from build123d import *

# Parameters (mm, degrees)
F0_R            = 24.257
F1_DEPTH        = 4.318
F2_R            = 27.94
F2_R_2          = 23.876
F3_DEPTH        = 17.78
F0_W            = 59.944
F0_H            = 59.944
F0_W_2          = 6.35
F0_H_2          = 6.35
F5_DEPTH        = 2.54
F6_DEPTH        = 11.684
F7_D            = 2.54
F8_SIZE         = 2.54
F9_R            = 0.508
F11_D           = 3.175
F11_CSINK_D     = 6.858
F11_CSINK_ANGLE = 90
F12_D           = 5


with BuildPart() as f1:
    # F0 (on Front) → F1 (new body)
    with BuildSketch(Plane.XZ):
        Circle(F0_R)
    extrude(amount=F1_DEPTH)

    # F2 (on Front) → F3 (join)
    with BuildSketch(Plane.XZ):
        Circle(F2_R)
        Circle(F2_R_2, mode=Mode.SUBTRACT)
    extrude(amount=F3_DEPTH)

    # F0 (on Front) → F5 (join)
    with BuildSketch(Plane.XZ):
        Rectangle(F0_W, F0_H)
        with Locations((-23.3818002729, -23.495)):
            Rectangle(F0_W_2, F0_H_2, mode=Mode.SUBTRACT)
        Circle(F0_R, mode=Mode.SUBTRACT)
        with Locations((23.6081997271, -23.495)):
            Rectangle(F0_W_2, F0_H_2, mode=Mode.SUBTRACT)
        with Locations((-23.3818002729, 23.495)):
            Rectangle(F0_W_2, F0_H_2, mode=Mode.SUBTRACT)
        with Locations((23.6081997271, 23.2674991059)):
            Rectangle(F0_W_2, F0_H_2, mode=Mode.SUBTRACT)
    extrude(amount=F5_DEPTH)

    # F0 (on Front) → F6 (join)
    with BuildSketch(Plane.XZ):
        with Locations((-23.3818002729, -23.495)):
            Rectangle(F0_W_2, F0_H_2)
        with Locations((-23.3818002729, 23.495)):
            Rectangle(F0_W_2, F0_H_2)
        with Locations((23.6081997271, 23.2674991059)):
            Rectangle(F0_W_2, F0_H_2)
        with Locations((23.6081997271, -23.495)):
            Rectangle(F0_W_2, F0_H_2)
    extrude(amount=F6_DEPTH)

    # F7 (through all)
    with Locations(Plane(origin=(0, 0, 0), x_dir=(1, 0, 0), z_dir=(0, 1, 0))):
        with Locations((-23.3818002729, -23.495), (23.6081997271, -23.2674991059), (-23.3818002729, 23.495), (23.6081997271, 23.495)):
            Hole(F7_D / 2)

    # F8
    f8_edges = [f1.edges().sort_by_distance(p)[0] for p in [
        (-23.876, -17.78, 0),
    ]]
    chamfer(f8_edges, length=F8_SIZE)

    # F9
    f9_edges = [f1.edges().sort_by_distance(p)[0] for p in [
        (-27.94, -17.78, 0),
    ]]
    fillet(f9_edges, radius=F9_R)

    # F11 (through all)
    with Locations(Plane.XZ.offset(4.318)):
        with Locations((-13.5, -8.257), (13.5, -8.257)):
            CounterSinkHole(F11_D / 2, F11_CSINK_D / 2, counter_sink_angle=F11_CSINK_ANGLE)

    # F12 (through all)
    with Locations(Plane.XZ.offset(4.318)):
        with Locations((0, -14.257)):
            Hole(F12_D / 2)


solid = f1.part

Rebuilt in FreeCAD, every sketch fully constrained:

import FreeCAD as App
import Part
import Sketcher
Q = App.Units.Quantity


def edges_at(feature, points):
    """Names of the edges that pass closest to the given points."""
    edges = feature.Shape.Edges
    near = lambda p: min(range(len(edges)), key=lambda i: edges[i].distToShape(Part.Vertex(*p))[0])
    return sorted({f"Edge{near(p) + 1}" for p in points})

doc = App.newDocument("Part")
body = doc.addObject("PartDesign::Body", "Body")

sketch1 = body.newObject("Sketcher::SketchObject", "Sketch")
sketch1.AttachmentSupport = (doc.getObject("XZ_Plane"), [""])
sketch1.MapMode = "FlatFace"
sketch1.addGeometry(Part.Circle(App.Vector(0, 0, 0), App.Vector(0, 0, 1), 24), False)
sketch1.addConstraint(Sketcher.Constraint("Coincident", 0, 3, -1, 1))
sketch1.addConstraint(Sketcher.Constraint("Diameter", 0, Q("1.91 in")))
pad1 = body.newObject("PartDesign::Pad", "Pad")
pad1.Profile = sketch1
pad1.Length = Q("0.17 in")

sketch2 = body.newObject("Sketcher::SketchObject", "Sketch001")
sketch2.AttachmentSupport = (doc.getObject("XZ_Plane"), [""])
sketch2.MapMode = "FlatFace"
sketch2.addGeometry(Part.Circle(App.Vector(0, 0, 0), App.Vector(0, 0, 1), 28), False)
sketch2.addGeometry(Part.Circle(App.Vector(0, 0, 0), App.Vector(0, 0, 1), 24), False)
sketch2.addConstraint(Sketcher.Constraint("Coincident", 0, 3, -1, 1))
sketch2.addConstraint(Sketcher.Constraint("Coincident", 1, 3, -1, 1))
sketch2.addConstraint(Sketcher.Constraint("Diameter", 0, Q("2.2 in")))
sketch2.addConstraint(Sketcher.Constraint("Diameter", 1, Q("1.88 in")))
pad2 = body.newObject("PartDesign::Pad", "Pad001")
pad2.Profile = sketch2
pad2.Length = Q("0.7 in")

sketch3 = body.newObject("Sketcher::SketchObject", "Sketch002")
sketch3.AttachmentSupport = (doc.getObject("XZ_Plane"), [""])
sketch3.MapMode = "FlatFace"
sketch3.addGeometry(Part.LineSegment(App.Vector(-30, 30, 0), App.Vector(-30, -30, 0)), False)
sketch3.addGeometry(Part.LineSegment(App.Vector(-30, -30, 0), App.Vector(30, -30, 0)), False)
sketch3.addGeometry(Part.LineSegment(App.Vector(30, -30, 0), App.Vector(30, 30, 0)), False)
sketch3.addGeometry(Part.LineSegment(App.Vector(30, 30, 0), App.Vector(-30, 30, 0)), False)
sketch3.addGeometry(Part.LineSegment(App.Vector(-20, -27, 0), App.Vector(-27, -27, 0)), False)
sketch3.addGeometry(Part.LineSegment(App.Vector(-27, -27, 0), App.Vector(-27, -20, 0)), False)
sketch3.addGeometry(Part.LineSegment(App.Vector(-27, -20, 0), App.Vector(-20, -20, 0)), False)
sketch3.addGeometry(Part.LineSegment(App.Vector(-20, -20, 0), App.Vector(-20, -27, 0)), False)
sketch3.addGeometry(Part.Circle(App.Vector(0, 0, 0), App.Vector(0, 0, 1), 24), False)
sketch3.addGeometry(Part.LineSegment(App.Vector(27, -27, 0), App.Vector(20, -27, 0)), False)
sketch3.addGeometry(Part.LineSegment(App.Vector(20, -27, 0), App.Vector(20, -20, 0)), False)
sketch3.addGeometry(Part.LineSegment(App.Vector(20, -20, 0), App.Vector(27, -20, 0)), False)
sketch3.addGeometry(Part.LineSegment(App.Vector(27, -20, 0), App.Vector(27, -27, 0)), False)
sketch3.addGeometry(Part.LineSegment(App.Vector(-20, 20, 0), App.Vector(-27, 20, 0)), False)
sketch3.addGeometry(Part.LineSegment(App.Vector(-27, 20, 0), App.Vector(-27, 27, 0)), False)
sketch3.addGeometry(Part.LineSegment(App.Vector(-27, 27, 0), App.Vector(-20, 27, 0)), False)
sketch3.addGeometry(Part.LineSegment(App.Vector(-20, 27, 0), App.Vector(-20, 20, 0)), False)
sketch3.addGeometry(Part.LineSegment(App.Vector(27, 20, 0), App.Vector(20, 20, 0)), False)
sketch3.addGeometry(Part.LineSegment(App.Vector(20, 20, 0), App.Vector(20, 26, 0)), False)
sketch3.addGeometry(Part.LineSegment(App.Vector(20, 26, 0), App.Vector(27, 26, 0)), False)
sketch3.addGeometry(Part.LineSegment(App.Vector(27, 26, 0), App.Vector(27, 20, 0)), False)
sketch3.addConstraint(Sketcher.Constraint("Coincident", 0, 2, 1, 1))
sketch3.addConstraint(Sketcher.Constraint("Coincident", 1, 2, 2, 1))
sketch3.addConstraint(Sketcher.Constraint("Coincident", 2, 2, 3, 1))
sketch3.addConstraint(Sketcher.Constraint("Coincident", 3, 2, 0, 1))
sketch3.addConstraint(Sketcher.Constraint("Coincident", 4, 2, 5, 1))
sketch3.addConstraint(Sketcher.Constraint("Coincident", 5, 2, 6, 1))
sketch3.addConstraint(Sketcher.Constraint("Coincident", 6, 2, 7, 1))
sketch3.addConstraint(Sketcher.Constraint("Coincident", 7, 2, 4, 1))
sketch3.addConstraint(Sketcher.Constraint("Coincident", 9, 2, 10, 1))
sketch3.addConstraint(Sketcher.Constraint("Coincident", 10, 2, 11, 1))
sketch3.addConstraint(Sketcher.Constraint("Coincident", 11, 2, 12, 1))
sketch3.addConstraint(Sketcher.Constraint("Coincident", 12, 2, 9, 1))
sketch3.addConstraint(Sketcher.Constraint("Coincident", 13, 2, 14, 1))
sketch3.addConstraint(Sketcher.Constraint("Coincident", 14, 2, 15, 1))
sketch3.addConstraint(Sketcher.Constraint("Coincident", 15, 2, 16, 1))
sketch3.addConstraint(Sketcher.Constraint("Coincident", 16, 2, 13, 1))
sketch3.addConstraint(Sketcher.Constraint("Coincident", 17, 2, 18, 1))
sketch3.addConstraint(Sketcher.Constraint("Coincident", 18, 2, 19, 1))
sketch3.addConstraint(Sketcher.Constraint("Coincident", 19, 2, 20, 1))
sketch3.addConstraint(Sketcher.Constraint("Coincident", 20, 2, 17, 1))
sketch3.addConstraint(Sketcher.Constraint("Vertical", 0))
sketch3.addConstraint(Sketcher.Constraint("Horizontal", 1))
sketch3.addConstraint(Sketcher.Constraint("Vertical", 2))
sketch3.addConstraint(Sketcher.Constraint("Horizontal", 3))
sketch3.addConstraint(Sketcher.Constraint("Horizontal", 4))
sketch3.addConstraint(Sketcher.Constraint("Vertical", 5))
sketch3.addConstraint(Sketcher.Constraint("Horizontal", 6))
sketch3.addConstraint(Sketcher.Constraint("Vertical", 7))
sketch3.addConstraint(Sketcher.Constraint("Horizontal", 9))
sketch3.addConstraint(Sketcher.Constraint("Vertical", 10))
sketch3.addConstraint(Sketcher.Constraint("Horizontal", 11))
sketch3.addConstraint(Sketcher.Constraint("Vertical", 12))
sketch3.addConstraint(Sketcher.Constraint("Horizontal", 13))
sketch3.addConstraint(Sketcher.Constraint("Vertical", 14))
sketch3.addConstraint(Sketcher.Constraint("Horizontal", 15))
sketch3.addConstraint(Sketcher.Constraint("Vertical", 16))
sketch3.addConstraint(Sketcher.Constraint("Horizontal", 17))
sketch3.addConstraint(Sketcher.Constraint("Vertical", 18))
sketch3.addConstraint(Sketcher.Constraint("Horizontal", 19))
sketch3.addConstraint(Sketcher.Constraint("Vertical", 20))
sketch3.addConstraint(Sketcher.Constraint("Coincident", 8, 3, -1, 1))
sketch3.addConstraint(Sketcher.Constraint("Symmetric", 0, 2, 2, 2, -1, 1))
sketch3.addConstraint(Sketcher.Constraint("Symmetric", 5, 2, 13, 2, -1))
sketch3.addConstraint(Sketcher.Constraint("Symmetric", 7, 2, 15, 2, -1))
sketch3.addConstraint(Sketcher.Constraint("Horizontal", 7, 2, 9, 2))
sketch3.addConstraint(Sketcher.Constraint("Horizontal", 6, 2, 10, 2))
sketch3.addConstraint(Sketcher.Constraint("Vertical", 10, 2, 17, 2))
sketch3.addConstraint(Sketcher.Constraint("Vertical", 12, 2, 19, 2))
sketch3.addConstraint(Sketcher.Constraint("Equal", 6, 9))
sketch3.addConstraint(Sketcher.Constraint("Equal", 3, 0))
sketch3.addConstraint(Sketcher.Constraint("Equal", 19, 5))
sketch3.addConstraint(Sketcher.Constraint("Equal", 16, 18))
sketch3.addConstraint(Sketcher.Constraint("Diameter", 8, Q("1.91 in")))
sketch3.addConstraint(Sketcher.Constraint("DistanceX", 1, 1, 1, 2, Q("2.36 in")))
sketch3.addConstraint(Sketcher.Constraint("DistanceX", 4, 2, 4, 1, Q("0.25 in")))
sketch3.addConstraint(Sketcher.Constraint("DistanceY", 5, 2, -1, 1, Q("0.8 in")))
sketch3.addConstraint(Sketcher.Constraint("DistanceX", 7, 2, 9, 2, Q("1.6 in")))
sketch3.addConstraint(Sketcher.Constraint("DistanceX", 4, 2, -1, 1, 26.5568))
sketch3.addConstraint(Sketcher.Constraint("DistanceY", -1, 1, 17, 2, 20.092499))
pad3 = body.newObject("PartDesign::Pad", "Pad002")
pad3.Profile = sketch3
pad3.Length = Q("0.1 in")

sketch4 = body.newObject("Sketcher::SketchObject", "Sketch003")
sketch4.AttachmentSupport = (doc.getObject("XZ_Plane"), [""])
sketch4.MapMode = "FlatFace"
sketch4.addGeometry(Part.LineSegment(App.Vector(-27, -20, 0), App.Vector(-27, -27, 0)), False)
sketch4.addGeometry(Part.LineSegment(App.Vector(-27, -27, 0), App.Vector(-20, -27, 0)), False)
sketch4.addGeometry(Part.LineSegment(App.Vector(-20, -27, 0), App.Vector(-20, -20, 0)), False)
sketch4.addGeometry(Part.LineSegment(App.Vector(-20, -20, 0), App.Vector(-27, -20, 0)), False)
sketch4.addGeometry(Part.LineSegment(App.Vector(-27, 27, 0), App.Vector(-27, 20, 0)), False)
sketch4.addGeometry(Part.LineSegment(App.Vector(-27, 20, 0), App.Vector(-20, 20, 0)), False)
sketch4.addGeometry(Part.LineSegment(App.Vector(-20, 20, 0), App.Vector(-20, 27, 0)), False)
sketch4.addGeometry(Part.LineSegment(App.Vector(-20, 27, 0), App.Vector(-27, 27, 0)), False)
sketch4.addGeometry(Part.LineSegment(App.Vector(20, 26, 0), App.Vector(20, 20, 0)), False)
sketch4.addGeometry(Part.LineSegment(App.Vector(20, 20, 0), App.Vector(27, 20, 0)), False)
sketch4.addGeometry(Part.LineSegment(App.Vector(27, 20, 0), App.Vector(27, 26, 0)), False)
sketch4.addGeometry(Part.LineSegment(App.Vector(27, 26, 0), App.Vector(20, 26, 0)), False)
sketch4.addGeometry(Part.LineSegment(App.Vector(20, -20, 0), App.Vector(20, -27, 0)), False)
sketch4.addGeometry(Part.LineSegment(App.Vector(20, -27, 0), App.Vector(27, -27, 0)), False)
sketch4.addGeometry(Part.LineSegment(App.Vector(27, -27, 0), App.Vector(27, -20, 0)), False)
sketch4.addGeometry(Part.LineSegment(App.Vector(27, -20, 0), App.Vector(20, -20, 0)), False)
sketch4.addConstraint(Sketcher.Constraint("Coincident", 0, 2, 1, 1))
sketch4.addConstraint(Sketcher.Constraint("Coincident", 1, 2, 2, 1))
sketch4.addConstraint(Sketcher.Constraint("Coincident", 2, 2, 3, 1))
sketch4.addConstraint(Sketcher.Constraint("Coincident", 3, 2, 0, 1))
sketch4.addConstraint(Sketcher.Constraint("Coincident", 4, 2, 5, 1))
sketch4.addConstraint(Sketcher.Constraint("Coincident", 5, 2, 6, 1))
sketch4.addConstraint(Sketcher.Constraint("Coincident", 6, 2, 7, 1))
sketch4.addConstraint(Sketcher.Constraint("Coincident", 7, 2, 4, 1))
sketch4.addConstraint(Sketcher.Constraint("Coincident", 8, 2, 9, 1))
sketch4.addConstraint(Sketcher.Constraint("Coincident", 9, 2, 10, 1))
sketch4.addConstraint(Sketcher.Constraint("Coincident", 10, 2, 11, 1))
sketch4.addConstraint(Sketcher.Constraint("Coincident", 11, 2, 8, 1))
sketch4.addConstraint(Sketcher.Constraint("Coincident", 12, 2, 13, 1))
sketch4.addConstraint(Sketcher.Constraint("Coincident", 13, 2, 14, 1))
sketch4.addConstraint(Sketcher.Constraint("Coincident", 14, 2, 15, 1))
sketch4.addConstraint(Sketcher.Constraint("Coincident", 15, 2, 12, 1))
sketch4.addConstraint(Sketcher.Constraint("Vertical", 0))
sketch4.addConstraint(Sketcher.Constraint("Horizontal", 1))
sketch4.addConstraint(Sketcher.Constraint("Vertical", 2))
sketch4.addConstraint(Sketcher.Constraint("Horizontal", 3))
sketch4.addConstraint(Sketcher.Constraint("Vertical", 4))
sketch4.addConstraint(Sketcher.Constraint("Horizontal", 5))
sketch4.addConstraint(Sketcher.Constraint("Vertical", 6))
sketch4.addConstraint(Sketcher.Constraint("Horizontal", 7))
sketch4.addConstraint(Sketcher.Constraint("Vertical", 8))
sketch4.addConstraint(Sketcher.Constraint("Horizontal", 9))
sketch4.addConstraint(Sketcher.Constraint("Vertical", 10))
sketch4.addConstraint(Sketcher.Constraint("Horizontal", 11))
sketch4.addConstraint(Sketcher.Constraint("Vertical", 12))
sketch4.addConstraint(Sketcher.Constraint("Horizontal", 13))
sketch4.addConstraint(Sketcher.Constraint("Vertical", 14))
sketch4.addConstraint(Sketcher.Constraint("Horizontal", 15))
sketch4.addConstraint(Sketcher.Constraint("Symmetric", 3, 2, 4, 2, -1))
sketch4.addConstraint(Sketcher.Constraint("Symmetric", 1, 2, 6, 2, -1))
sketch4.addConstraint(Sketcher.Constraint("Horizontal", 1, 2, 12, 2))
sketch4.addConstraint(Sketcher.Constraint("Horizontal", 3, 2, 14, 2))
sketch4.addConstraint(Sketcher.Constraint("Vertical", 11, 2, 12, 2))
sketch4.addConstraint(Sketcher.Constraint("Vertical", 10, 2, 13, 2))
sketch4.addConstraint(Sketcher.Constraint("Equal", 7, 9))
sketch4.addConstraint(Sketcher.Constraint("Equal", 15, 0))
sketch4.addConstraint(Sketcher.Constraint("Equal", 6, 8))
sketch4.addConstraint(Sketcher.Constraint("DistanceX", 1, 1, 1, 2, Q("0.25 in")))
sketch4.addConstraint(Sketcher.Constraint("DistanceY", 2, 2, -1, 1, Q("0.8 in")))
sketch4.addConstraint(Sketcher.Constraint("DistanceX", 5, 2, 8, 2, Q("1.6 in")))
sketch4.addConstraint(Sketcher.Constraint("DistanceX", 0, 2, -1, 1, 26.5568))
sketch4.addConstraint(Sketcher.Constraint("DistanceY", -1, 1, 8, 2, 20.092499))
pad4 = body.newObject("PartDesign::Pad", "Pad003")
pad4.Profile = sketch4
pad4.Length = Q("0.46 in")

sketch5 = body.newObject("Sketcher::SketchObject", "Sketch004")
sketch5.AttachmentSupport = (doc.getObject("XZ_Plane"), [""])
sketch5.MapMode = "FlatFace"
sketch5.addGeometry(Part.Circle(App.Vector(-23.4, 23.5, 0), App.Vector(0, 0, 1), 1.3), False)
sketch5.addGeometry(Part.Circle(App.Vector(23.6, 23.3, 0), App.Vector(0, 0, 1), 1.3), False)
sketch5.addGeometry(Part.Circle(App.Vector(-23.4, -23.5, 0), App.Vector(0, 0, 1), 1.3), False)
sketch5.addGeometry(Part.Circle(App.Vector(23.6, -23.5, 0), App.Vector(0, 0, 1), 1.3), False)
sketch5.addConstraint(Sketcher.Constraint("Equal", 0, 1))
sketch5.addConstraint(Sketcher.Constraint("Equal", 1, 2))
sketch5.addConstraint(Sketcher.Constraint("Equal", 2, 3))
sketch5.addConstraint(Sketcher.Constraint("Symmetric", 0, 3, 2, 3, -1))
sketch5.addConstraint(Sketcher.Constraint("Horizontal", 2, 3, 3, 3))
sketch5.addConstraint(Sketcher.Constraint("Vertical", 1, 3, 3, 3))
sketch5.addConstraint(Sketcher.Constraint("Diameter", 0, Q("0.1 in")))
sketch5.addConstraint(Sketcher.Constraint("DistanceX", 0, 3, 1, 3, Q("1.85 in")))
sketch5.addConstraint(Sketcher.Constraint("DistanceY", 2, 3, 0, 3, Q("1.85 in")))
sketch5.addConstraint(Sketcher.Constraint("DistanceX", 0, 3, -1, 1, 23.3818))
sketch5.addConstraint(Sketcher.Constraint("DistanceY", -1, 1, 1, 3, 23.267499))
doc.recompute()
hole = body.newObject("PartDesign::Hole", "Hole")
hole.Profile = sketch5
hole.ThreadType = "None"
hole.Diameter = Q("0.1 in")
hole.DepthType = "ThroughAll"
hole.Reversed = True
doc.recompute()

chamfer = body.newObject("PartDesign::Chamfer", "Chamfer")
chamfer.Base = (hole, edges_at(hole, [(-23.876, -17.78, 0)]))
chamfer.Size = Q("0.1 in")
doc.recompute()

fillet = body.newObject("PartDesign::Fillet", "Fillet")
fillet.Base = (chamfer, edges_at(chamfer, [(-27.94, -17.78, 0)]))
fillet.Radius = Q("0.02 in")

sketch6 = body.newObject("Sketcher::SketchObject", "Sketch005")
sketch6.AttachmentSupport = (doc.getObject("XZ_Plane"), [""])
sketch6.MapMode = "FlatFace"
sketch6.AttachmentOffset = App.Placement(App.Vector(0, 0, 0.17 * 25.4), App.Rotation())
sketch6.addGeometry(Part.Circle(App.Vector(-13.5, -8.3, 0), App.Vector(0, 0, 1), 1.6), False)
sketch6.addGeometry(Part.Circle(App.Vector(13.5, -8.3, 0), App.Vector(0, 0, 1), 1.6), False)
sketch6.addConstraint(Sketcher.Constraint("Equal", 0, 1))
sketch6.addConstraint(Sketcher.Constraint("Symmetric", 0, 3, 1, 3, -2))
sketch6.addConstraint(Sketcher.Constraint("Diameter", 0, Q("0.125 in")))
sketch6.addConstraint(Sketcher.Constraint("DistanceX", 0, 3, -1, 1, 13.5))
sketch6.addConstraint(Sketcher.Constraint("DistanceY", 0, 3, -1, 1, 8.257))
doc.recompute()
hole2 = body.newObject("PartDesign::Hole", "Hole001")
hole2.Profile = sketch6
hole2.ThreadType = "None"
hole2.Diameter = Q("0.125 in")
hole2.DepthType = "ThroughAll"
hole2.HoleCutType = "Countersink"
hole2.HoleCutDiameter = Q("0.27 in")
hole2.HoleCutCountersinkAngle = 90

sketch7 = body.newObject("Sketcher::SketchObject", "Sketch006")
sketch7.AttachmentSupport = (doc.getObject("XZ_Plane"), [""])
sketch7.MapMode = "FlatFace"
sketch7.AttachmentOffset = App.Placement(App.Vector(0, 0, 0.17 * 25.4), App.Rotation())
sketch7.addGeometry(Part.Circle(App.Vector(0, -14.3, 0), App.Vector(0, 0, 1), 2.5), False)
sketch7.addConstraint(Sketcher.Constraint("PointOnObject", 0, 3, -2))
sketch7.addConstraint(Sketcher.Constraint("Diameter", 0, 5.0))
sketch7.addConstraint(Sketcher.Constraint("DistanceY", 0, 3, -1, 1, 14.257))
doc.recompute()
hole3 = body.newObject("PartDesign::Hole", "Hole002")
hole3.Profile = sketch7
hole3.ThreadType = "None"
hole3.Diameter = 5
hole3.DepthType = "ThroughAll"

doc.recompute()
